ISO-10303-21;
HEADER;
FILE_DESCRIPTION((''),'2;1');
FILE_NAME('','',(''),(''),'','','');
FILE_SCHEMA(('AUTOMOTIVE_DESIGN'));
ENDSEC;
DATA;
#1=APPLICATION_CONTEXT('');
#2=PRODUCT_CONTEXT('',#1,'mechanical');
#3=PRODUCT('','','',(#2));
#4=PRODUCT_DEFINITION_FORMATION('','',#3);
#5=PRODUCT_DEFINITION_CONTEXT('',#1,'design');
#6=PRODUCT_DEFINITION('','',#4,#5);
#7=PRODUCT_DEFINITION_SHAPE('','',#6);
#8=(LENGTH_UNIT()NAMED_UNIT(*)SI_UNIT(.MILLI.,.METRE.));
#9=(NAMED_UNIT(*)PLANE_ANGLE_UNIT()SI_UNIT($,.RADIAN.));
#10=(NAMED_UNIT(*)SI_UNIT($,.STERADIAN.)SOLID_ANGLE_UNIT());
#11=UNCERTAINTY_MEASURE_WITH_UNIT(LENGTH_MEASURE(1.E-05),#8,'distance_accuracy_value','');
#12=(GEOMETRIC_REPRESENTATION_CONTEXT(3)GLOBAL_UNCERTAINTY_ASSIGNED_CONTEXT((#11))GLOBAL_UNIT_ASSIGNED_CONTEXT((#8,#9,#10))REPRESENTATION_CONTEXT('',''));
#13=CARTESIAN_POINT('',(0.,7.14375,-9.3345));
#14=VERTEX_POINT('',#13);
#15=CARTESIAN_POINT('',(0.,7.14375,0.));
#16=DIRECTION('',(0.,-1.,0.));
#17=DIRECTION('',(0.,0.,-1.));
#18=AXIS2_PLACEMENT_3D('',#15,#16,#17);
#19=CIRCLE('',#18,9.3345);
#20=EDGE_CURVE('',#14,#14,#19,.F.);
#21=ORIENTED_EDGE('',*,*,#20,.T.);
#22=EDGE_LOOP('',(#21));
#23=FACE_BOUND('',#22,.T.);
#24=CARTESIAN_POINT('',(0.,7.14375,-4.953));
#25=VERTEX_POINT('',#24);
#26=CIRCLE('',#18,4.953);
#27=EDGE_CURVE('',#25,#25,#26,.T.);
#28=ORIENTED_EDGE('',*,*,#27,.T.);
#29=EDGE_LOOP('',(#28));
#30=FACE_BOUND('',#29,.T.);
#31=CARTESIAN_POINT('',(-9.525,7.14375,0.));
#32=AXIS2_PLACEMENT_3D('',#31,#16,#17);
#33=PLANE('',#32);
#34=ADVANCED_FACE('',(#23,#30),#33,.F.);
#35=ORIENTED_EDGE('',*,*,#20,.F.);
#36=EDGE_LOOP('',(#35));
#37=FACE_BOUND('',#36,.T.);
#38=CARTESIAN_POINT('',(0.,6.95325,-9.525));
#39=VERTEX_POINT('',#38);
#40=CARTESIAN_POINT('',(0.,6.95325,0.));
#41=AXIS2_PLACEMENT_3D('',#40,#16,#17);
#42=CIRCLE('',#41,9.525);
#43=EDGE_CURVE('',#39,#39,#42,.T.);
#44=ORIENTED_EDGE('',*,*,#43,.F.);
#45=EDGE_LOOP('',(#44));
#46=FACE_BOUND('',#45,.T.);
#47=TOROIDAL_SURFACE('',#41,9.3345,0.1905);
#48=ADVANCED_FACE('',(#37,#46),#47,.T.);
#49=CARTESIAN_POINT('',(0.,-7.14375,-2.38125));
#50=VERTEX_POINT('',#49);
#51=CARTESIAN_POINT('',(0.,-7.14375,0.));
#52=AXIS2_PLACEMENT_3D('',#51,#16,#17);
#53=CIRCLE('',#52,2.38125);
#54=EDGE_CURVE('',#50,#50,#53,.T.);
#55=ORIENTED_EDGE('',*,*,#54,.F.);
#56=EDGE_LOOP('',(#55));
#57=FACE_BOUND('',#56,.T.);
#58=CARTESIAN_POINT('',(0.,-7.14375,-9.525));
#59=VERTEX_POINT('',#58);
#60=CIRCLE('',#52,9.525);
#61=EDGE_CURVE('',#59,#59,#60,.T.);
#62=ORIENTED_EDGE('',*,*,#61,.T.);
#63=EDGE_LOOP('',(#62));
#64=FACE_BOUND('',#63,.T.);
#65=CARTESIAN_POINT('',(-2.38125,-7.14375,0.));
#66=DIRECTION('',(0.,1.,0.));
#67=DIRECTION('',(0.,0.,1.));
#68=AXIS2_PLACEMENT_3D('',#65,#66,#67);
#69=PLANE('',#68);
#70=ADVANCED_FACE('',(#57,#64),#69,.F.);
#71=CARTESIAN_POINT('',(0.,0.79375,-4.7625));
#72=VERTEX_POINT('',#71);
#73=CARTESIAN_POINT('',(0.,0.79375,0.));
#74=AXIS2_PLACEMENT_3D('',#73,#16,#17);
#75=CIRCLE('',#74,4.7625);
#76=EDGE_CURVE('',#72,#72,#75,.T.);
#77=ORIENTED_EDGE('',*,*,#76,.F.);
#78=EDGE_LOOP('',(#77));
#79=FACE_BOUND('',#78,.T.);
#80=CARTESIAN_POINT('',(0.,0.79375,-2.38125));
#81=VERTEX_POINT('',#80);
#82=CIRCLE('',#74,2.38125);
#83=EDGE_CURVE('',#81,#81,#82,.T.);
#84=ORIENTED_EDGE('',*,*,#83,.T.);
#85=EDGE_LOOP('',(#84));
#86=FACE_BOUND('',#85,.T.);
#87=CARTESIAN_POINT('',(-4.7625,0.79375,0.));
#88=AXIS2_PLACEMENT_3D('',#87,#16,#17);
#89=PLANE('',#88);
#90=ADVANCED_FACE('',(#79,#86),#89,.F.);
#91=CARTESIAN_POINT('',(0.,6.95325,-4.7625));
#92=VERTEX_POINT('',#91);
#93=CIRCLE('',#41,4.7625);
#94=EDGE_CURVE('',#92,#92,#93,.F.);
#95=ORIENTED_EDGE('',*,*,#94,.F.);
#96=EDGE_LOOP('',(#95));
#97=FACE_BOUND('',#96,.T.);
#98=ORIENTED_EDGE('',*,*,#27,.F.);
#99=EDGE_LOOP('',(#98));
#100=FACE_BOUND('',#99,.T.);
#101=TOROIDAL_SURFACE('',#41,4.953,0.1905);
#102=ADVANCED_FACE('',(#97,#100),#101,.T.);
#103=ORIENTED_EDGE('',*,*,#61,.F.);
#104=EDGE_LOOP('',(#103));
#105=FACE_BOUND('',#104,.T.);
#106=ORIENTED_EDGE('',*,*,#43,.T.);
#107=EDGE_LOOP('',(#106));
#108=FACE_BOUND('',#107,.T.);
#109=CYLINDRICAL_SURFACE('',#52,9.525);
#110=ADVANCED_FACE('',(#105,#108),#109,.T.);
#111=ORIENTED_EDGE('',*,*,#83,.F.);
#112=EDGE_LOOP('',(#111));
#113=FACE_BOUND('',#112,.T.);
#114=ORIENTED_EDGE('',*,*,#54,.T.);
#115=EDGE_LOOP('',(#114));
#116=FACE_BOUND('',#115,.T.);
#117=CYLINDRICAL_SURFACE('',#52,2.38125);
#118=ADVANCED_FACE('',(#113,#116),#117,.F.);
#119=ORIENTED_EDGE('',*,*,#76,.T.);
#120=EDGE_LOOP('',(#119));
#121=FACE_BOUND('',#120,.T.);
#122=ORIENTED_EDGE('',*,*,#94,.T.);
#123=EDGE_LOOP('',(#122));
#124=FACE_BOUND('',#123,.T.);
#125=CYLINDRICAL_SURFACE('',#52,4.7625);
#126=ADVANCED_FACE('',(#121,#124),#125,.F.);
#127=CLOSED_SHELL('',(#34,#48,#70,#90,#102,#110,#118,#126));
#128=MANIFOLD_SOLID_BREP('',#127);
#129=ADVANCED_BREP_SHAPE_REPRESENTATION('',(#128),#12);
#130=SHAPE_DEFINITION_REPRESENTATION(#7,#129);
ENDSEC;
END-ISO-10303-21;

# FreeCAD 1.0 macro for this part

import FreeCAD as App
import Part
import Sketcher
from FreeCAD import Vector
Q = App.Units.Quantity


def edges_at(feature, points):
    """Names of the edges that pass closest to the given points."""
    edges = feature.Shape.Edges
    near = lambda p: min(range(len(edges)), key=lambda i: edges[i].distToShape(Part.Vertex(*p))[0])
    return sorted({f"Edge{near(p) + 1}" for p in points})


def add_polygon(sketch, points):
    """Adds a closed chain of lines whose ends are joined by coincident constraints."""
    first, n = sketch.GeometryCount, len(points)
    for a, b in zip(points, points[1:] + points[:1]):
        sketch.addGeometry(Part.LineSegment(App.Vector(*a, 0), App.Vector(*b, 0)), False)
    for i in range(n):
        sketch.addConstraint(Sketcher.Constraint("Coincident", first + i, 2, first + (i + 1) % n, 1))

doc = App.newDocument("Part")
body = doc.addObject("PartDesign::Body", "Body")

sketch1 = doc.addObject("Sketcher::SketchObject", "Sketch")
body.addObject(sketch1)
sketch1.AttachmentSupport = (doc.XY_Plane, [""])
sketch1.MapMode = "FlatFace"
add_polygon(sketch1, [(-9.5, 7.1), (-9.5, -7.1), (-2.4, -7.1), (-2.4, 0.8), (-4.8, 0.8), (-4.8, 7.1)])
sketch1.addConstraint([
    Sketcher.Constraint("Vertical", 0),
    Sketcher.Constraint("Horizontal", 1),
    Sketcher.Constraint("Vertical", 2),
    Sketcher.Constraint("Horizontal", 3),
    Sketcher.Constraint("Vertical", 4),
    Sketcher.Constraint("Horizontal", 5),
    Sketcher.Constraint("DistanceY", 4, 1, 4, 2, Q("0.25 in")),
    Sketcher.Constraint("DistanceX", 1, 1, 1, 2, Q("0.28125 in")),
    Sketcher.Constraint("DistanceX", 3, 2, 3, 1, Q("0.09375 in")),
    Sketcher.Constraint("DistanceY", 0, 2, 0, 1, Q("0.5625 in")),
    Sketcher.Constraint("DistanceX", 0, 2, -1, 1, Q("0.375 in")),
    Sketcher.Constraint("DistanceY", 0, 2, -1, 1, Q("0.28125 in")),
])
revolution = doc.addObject("PartDesign::Revolution", "Revolution")
body.addObject(revolution)
revolution.Profile = sketch1
revolution.ReferenceAxis = (sketch1, ["V_Axis"])
revolution.Angle = 360
doc.recompute()

fillet = doc.addObject("PartDesign::Fillet", "Fillet")
body.addObject(fillet)
fillet.Base = (revolution, edges_at(revolution, [(0, 7.144, 4.763)]))
fillet.Radius = Q("0.0075 in")
doc.recompute()

fillet2 = doc.addObject("PartDesign::Fillet", "Fillet001")
body.addObject(fillet2)
fillet2.Base = (fillet, edges_at(fillet, [(0, 7.144, 9.525)]))
fillet2.Radius = Q("0.0075 in")

doc.recompute()
